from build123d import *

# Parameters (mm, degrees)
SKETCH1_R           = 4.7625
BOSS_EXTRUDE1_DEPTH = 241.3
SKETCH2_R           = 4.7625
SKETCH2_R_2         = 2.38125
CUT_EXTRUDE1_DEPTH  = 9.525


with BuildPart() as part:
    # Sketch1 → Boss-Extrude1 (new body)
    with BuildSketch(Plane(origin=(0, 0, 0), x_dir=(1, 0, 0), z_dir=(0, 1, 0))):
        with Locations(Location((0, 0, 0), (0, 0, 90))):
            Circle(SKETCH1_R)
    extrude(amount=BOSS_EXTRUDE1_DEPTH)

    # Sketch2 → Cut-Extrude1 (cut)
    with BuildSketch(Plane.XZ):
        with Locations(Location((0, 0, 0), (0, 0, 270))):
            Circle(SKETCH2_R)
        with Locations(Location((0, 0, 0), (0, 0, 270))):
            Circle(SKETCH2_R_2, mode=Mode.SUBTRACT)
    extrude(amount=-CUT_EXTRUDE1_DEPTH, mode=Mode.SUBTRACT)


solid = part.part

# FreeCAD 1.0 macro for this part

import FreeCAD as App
import Part
import Sketcher
Q = App.Units.Quantity

doc = App.newDocument("Part")
body = doc.addObject("PartDesign::Body", "Body")

# Sketch on XZ plane
sketch1 = body.newObject("Sketcher::SketchObject", "Sketch")
sketch1.AttachmentSupport = (doc.getObject("XZ_Plane"), [""])
sketch1.MapMode = "FlatFace"
sketch1.addGeometry(Part.Circle(App.Vector(0, 0, 0), App.Vector(0, 0, 1), 4.7625), False)
sketch1.addConstraint([
    Sketcher.Constraint("Coincident", 0, 3, -1, 1),
    Sketcher.Constraint("Diameter", 0, Q("0.375 in")),
])
pad1 = body.newObject("PartDesign::Pad", "Pad")
pad1.Profile = sketch1
pad1.Length = Q("9.5 in")
pad1.Reversed = True

# Sketch on XZ plane
sketch2 = body.newObject("Sketcher::SketchObject", "Sketch001")
sketch2.AttachmentSupport = (doc.getObject("XZ_Plane"), [""])
sketch2.MapMode = "FlatFace"
sketch2.addGeometry([
    Part.Circle(App.Vector(0, 0, 0), App.Vector(0, 0, 1), 4.7625),
    Part.Circle(App.Vector(0, 0, 0), App.Vector(0, 0, 1), 2.38125),
], False)
sketch2.addConstraint([
    Sketcher.Constraint("Coincident", 0, 3, -1, 1),
    Sketcher.Constraint("Coincident", 1, 3, -1, 1),
    Sketcher.Constraint("Diameter", 0, Q("0.375 in")),
    Sketcher.Constraint("Diameter", 1, Q("0.1875 in")),
])
pocket1 = body.newObject("PartDesign::Pocket", "Pocket")
pocket1.Profile = sketch2
pocket1.Length = Q("0.375 in")

doc.recompute()
